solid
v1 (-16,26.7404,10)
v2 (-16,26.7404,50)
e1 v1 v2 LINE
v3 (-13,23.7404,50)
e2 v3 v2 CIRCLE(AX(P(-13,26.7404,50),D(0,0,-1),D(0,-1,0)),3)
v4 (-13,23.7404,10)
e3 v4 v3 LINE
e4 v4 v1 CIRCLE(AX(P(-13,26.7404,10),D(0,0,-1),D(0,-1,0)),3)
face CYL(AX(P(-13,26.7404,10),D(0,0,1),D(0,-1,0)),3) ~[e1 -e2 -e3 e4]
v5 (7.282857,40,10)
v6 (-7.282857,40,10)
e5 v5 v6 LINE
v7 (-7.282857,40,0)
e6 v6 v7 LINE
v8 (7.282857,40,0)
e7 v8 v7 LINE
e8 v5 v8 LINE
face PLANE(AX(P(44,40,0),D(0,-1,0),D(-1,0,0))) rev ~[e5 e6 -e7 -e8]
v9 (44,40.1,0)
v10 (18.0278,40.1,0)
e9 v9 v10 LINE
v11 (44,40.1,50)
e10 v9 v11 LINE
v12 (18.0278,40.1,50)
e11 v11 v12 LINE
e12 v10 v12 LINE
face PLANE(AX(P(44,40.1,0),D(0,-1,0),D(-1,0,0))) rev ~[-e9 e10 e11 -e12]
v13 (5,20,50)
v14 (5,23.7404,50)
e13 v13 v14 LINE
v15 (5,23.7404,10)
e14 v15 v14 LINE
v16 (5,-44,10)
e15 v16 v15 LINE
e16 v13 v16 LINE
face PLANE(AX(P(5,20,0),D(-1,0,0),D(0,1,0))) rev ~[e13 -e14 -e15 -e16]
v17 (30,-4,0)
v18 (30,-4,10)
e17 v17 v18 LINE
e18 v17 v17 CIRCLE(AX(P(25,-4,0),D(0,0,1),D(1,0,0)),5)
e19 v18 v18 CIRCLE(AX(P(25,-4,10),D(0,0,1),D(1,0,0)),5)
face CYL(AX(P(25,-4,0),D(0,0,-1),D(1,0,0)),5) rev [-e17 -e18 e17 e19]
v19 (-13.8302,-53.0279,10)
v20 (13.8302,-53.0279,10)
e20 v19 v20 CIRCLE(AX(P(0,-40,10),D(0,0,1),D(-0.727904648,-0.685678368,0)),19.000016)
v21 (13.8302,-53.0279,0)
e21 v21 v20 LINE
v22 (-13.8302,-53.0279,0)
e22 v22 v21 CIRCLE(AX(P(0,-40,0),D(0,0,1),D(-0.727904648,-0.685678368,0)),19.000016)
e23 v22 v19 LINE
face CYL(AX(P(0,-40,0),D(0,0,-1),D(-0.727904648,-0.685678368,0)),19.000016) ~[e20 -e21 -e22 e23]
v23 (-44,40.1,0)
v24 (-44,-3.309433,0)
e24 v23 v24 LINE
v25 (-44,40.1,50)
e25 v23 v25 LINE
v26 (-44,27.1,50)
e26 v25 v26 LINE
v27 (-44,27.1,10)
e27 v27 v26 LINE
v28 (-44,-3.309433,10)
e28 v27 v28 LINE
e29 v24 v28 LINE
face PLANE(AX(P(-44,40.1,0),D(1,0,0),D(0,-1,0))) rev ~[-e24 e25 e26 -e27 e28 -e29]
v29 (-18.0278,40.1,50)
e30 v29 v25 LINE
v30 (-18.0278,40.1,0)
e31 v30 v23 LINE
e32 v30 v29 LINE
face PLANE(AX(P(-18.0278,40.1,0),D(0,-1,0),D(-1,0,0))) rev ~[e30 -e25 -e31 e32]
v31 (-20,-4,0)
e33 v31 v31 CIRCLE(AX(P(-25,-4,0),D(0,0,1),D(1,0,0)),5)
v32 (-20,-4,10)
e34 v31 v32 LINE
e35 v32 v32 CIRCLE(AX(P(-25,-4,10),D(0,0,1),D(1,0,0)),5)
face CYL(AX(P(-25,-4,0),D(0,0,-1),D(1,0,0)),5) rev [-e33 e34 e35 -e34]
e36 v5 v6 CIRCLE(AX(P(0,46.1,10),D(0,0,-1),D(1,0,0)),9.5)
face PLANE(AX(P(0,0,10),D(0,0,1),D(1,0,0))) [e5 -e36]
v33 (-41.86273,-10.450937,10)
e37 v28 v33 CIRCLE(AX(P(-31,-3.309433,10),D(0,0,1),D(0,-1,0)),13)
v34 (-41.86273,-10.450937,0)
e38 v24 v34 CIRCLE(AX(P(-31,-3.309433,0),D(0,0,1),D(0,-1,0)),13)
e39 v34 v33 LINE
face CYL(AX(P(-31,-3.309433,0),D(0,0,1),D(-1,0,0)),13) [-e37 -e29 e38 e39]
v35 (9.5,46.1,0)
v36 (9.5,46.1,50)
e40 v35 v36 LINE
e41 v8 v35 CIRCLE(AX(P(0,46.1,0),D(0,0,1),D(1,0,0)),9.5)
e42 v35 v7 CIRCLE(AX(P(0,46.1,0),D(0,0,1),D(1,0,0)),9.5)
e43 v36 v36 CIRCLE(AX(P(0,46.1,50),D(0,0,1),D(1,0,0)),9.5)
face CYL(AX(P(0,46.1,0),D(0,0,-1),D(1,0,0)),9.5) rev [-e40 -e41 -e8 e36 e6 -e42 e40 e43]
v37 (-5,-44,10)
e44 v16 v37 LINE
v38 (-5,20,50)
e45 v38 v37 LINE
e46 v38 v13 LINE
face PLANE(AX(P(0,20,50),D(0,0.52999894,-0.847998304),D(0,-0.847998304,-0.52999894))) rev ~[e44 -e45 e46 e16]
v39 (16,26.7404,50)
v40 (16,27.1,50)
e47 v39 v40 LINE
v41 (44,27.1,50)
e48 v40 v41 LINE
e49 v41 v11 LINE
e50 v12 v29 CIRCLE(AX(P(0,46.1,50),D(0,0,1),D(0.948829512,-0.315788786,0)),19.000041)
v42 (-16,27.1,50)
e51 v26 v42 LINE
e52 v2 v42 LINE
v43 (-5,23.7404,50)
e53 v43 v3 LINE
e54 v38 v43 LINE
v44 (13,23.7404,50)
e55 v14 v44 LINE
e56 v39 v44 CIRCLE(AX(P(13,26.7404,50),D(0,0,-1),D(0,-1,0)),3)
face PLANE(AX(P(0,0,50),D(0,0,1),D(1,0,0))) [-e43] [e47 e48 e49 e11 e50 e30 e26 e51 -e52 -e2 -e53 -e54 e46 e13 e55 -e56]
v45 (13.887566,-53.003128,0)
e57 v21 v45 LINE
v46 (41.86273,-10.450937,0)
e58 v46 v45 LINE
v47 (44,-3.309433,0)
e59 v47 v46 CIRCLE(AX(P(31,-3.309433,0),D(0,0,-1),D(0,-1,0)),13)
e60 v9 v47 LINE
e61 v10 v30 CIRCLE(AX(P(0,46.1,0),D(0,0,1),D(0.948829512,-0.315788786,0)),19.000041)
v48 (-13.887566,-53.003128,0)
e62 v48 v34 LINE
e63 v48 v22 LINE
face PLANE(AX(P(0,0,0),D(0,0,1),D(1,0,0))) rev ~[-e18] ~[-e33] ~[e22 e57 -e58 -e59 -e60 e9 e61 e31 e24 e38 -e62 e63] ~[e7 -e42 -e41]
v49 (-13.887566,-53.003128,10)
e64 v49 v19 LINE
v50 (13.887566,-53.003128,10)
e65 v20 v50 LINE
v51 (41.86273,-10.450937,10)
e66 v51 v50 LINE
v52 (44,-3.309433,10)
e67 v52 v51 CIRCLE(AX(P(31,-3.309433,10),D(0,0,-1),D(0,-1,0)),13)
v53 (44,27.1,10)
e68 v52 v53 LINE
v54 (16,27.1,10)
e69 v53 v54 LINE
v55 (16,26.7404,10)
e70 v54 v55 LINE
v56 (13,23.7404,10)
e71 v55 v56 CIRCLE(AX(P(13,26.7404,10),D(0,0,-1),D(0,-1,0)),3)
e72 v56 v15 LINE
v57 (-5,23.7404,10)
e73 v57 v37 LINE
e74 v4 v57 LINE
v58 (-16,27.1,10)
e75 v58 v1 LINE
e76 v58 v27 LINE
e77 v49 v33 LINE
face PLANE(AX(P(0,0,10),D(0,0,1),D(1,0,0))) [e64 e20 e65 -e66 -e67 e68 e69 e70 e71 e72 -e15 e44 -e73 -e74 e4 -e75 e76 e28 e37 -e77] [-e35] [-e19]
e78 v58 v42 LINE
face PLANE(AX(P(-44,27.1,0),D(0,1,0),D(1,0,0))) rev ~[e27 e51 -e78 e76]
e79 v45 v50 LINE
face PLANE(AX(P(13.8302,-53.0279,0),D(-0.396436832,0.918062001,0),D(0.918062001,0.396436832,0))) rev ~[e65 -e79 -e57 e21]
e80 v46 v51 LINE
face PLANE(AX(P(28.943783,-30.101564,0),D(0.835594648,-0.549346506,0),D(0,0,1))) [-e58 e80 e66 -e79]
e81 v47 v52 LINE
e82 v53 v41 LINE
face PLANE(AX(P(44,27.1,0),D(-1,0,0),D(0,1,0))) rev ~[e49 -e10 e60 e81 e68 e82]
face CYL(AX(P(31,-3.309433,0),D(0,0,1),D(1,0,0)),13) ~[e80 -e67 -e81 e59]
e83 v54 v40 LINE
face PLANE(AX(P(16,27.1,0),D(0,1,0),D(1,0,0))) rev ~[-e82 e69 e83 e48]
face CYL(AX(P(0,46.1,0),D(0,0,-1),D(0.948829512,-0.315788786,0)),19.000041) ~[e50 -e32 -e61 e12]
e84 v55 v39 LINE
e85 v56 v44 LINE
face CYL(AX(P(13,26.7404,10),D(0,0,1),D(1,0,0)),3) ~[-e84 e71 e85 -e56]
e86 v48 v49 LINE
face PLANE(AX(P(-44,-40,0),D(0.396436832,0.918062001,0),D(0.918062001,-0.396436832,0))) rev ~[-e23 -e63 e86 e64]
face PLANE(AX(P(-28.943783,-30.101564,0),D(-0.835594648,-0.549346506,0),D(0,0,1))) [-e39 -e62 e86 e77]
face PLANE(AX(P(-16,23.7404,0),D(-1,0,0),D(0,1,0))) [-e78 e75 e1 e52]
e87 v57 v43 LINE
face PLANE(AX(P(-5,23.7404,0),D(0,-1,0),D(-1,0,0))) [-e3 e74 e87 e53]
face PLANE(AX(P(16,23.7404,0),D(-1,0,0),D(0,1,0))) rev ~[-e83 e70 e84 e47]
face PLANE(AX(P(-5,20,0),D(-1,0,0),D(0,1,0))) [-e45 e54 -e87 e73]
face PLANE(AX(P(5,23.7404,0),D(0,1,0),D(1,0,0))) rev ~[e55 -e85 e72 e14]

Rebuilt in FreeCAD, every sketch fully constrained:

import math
import FreeCAD as App
import Part
import Sketcher

V = App.Vector
Q = App.Units.Quantity


def edges_at(feature, points):
    """Names of the edges that pass closest to the given points."""
    edges = feature.Shape.Edges
    near = lambda p: min(range(len(edges)), key=lambda i: edges[i].distToShape(Part.Vertex(*p))[0])
    return sorted({f"Edge{near(p) + 1}" for p in points})

doc = App.newDocument("Part")
body = doc.addObject("PartDesign::Body", "Body")

sketch1 = body.newObject("Sketcher::SketchObject", "Sketch")
sketch1.AttachmentSupport = (doc.getObject("XY_Plane"), [""])
sketch1.MapMode = "FlatFace"
sketch1.addGeometry([
    Part.LineSegment(V(44, -40, 0), V(44, 40, 0)),
    Part.LineSegment(V(44, 40, 0), V(-44, 40, 0)),
    Part.LineSegment(V(-44, 40, 0), V(-44, -40, 0)),
    Part.LineSegment(V(-44, -40, 0), V(-14, -53, 0)),
    Part.ArcOfCircle(Part.Circle(V(0, -40, 0), V(0, 0, 1), 19), math.radians(-137), math.radians(-43)),
    Part.LineSegment(V(14, -53, 0), V(44, -40, 0)),
    Part.Circle(V(-25, -4, 0), V(0, 0, 1), 5),
    Part.Circle(V(25, -4, 0), V(0, 0, 1), 5),
], False)
sketch1.addConstraint([
    Sketcher.Constraint("Coincident", 0, 2, 1, 1),
    Sketcher.Constraint("Coincident", 1, 2, 2, 1),
    Sketcher.Constraint("Coincident", 2, 2, 3, 1),
    Sketcher.Constraint("Coincident", 3, 2, 4, 1),
    Sketcher.Constraint("Coincident", 4, 2, 5, 1),
    Sketcher.Constraint("Coincident", 5, 2, 0, 1),
    Sketcher.Constraint("Vertical", 0),
    Sketcher.Constraint("Horizontal", 1),
    Sketcher.Constraint("Vertical", 2),
    Sketcher.Constraint("Equal", 6, 7),
    Sketcher.Constraint("Symmetric", 0, 2, 2, 2, -1, 1),
    Sketcher.Constraint("Symmetric", 6, 3, 7, 3, -2),
    Sketcher.Constraint("Symmetric", 3, 2, 4, 2, -2),
    Sketcher.Constraint("Horizontal", 4, 3, 2, 2),
    Sketcher.Constraint("Horizontal", 2, 2, 5, 2),
    Sketcher.Constraint("Diameter", 6, Q("10 mm")),
    Sketcher.Constraint("Radius", 4, Q("19 mm")),
    Sketcher.Constraint("DistanceX", 1, 2, 1, 1, Q("88 mm")),
    Sketcher.Constraint("DistanceY", 0, 1, 0, 2, Q("80 mm")),
    Sketcher.Constraint("DistanceX", 7, 3, 0, 2, Q("19 mm")),
    Sketcher.Constraint("DistanceY", 6, 3, -1, 1, Q("4 mm")),
    Sketcher.Constraint("DistanceY", 3, 2, -1, 1, Q("53.028 mm")),
])
pad1 = body.newObject("PartDesign::Pad", "Pad")
pad1.Profile = sketch1
pad1.Length = 10
doc.recompute()

chamfer = body.newObject("PartDesign::Chamfer", "Chamfer")
chamfer.Base = (pad1, edges_at(pad1, [(-44, -40, 5), (44, -40, 5)]))
chamfer.Size = 32.8
doc.recompute()

fillet = body.newObject("PartDesign::Fillet", "Fillet")
fillet.Base = (chamfer, edges_at(chamfer, [(-44, -7.2, 5), (44, -7.2, 5)]))
fillet.Radius = 13

sketch2 = body.newObject("Sketcher::SketchObject", "Sketch001")
sketch2.AttachmentSupport = (doc.getObject("YZ_Plane"), [""])
sketch2.MapMode = "FlatFace"
sketch2.addGeometry([
    Part.LineSegment(V(-44, 10, 0), V(20, 10, 0)),
    Part.LineSegment(V(20, 10, 0), V(20, 50, 0)),
    Part.LineSegment(V(20, 50, 0), V(-44, 10, 0)),
], False)
sketch2.addConstraint([
    Sketcher.Constraint("Coincident", 0, 2, 1, 1),
    Sketcher.Constraint("Coincident", 1, 2, 2, 1),
    Sketcher.Constraint("Coincident", 2, 2, 0, 1),
    Sketcher.Constraint("Horizontal", 0),
    Sketcher.Constraint("Vertical", 1),
    Sketcher.Constraint("DistanceX", 0, 1, 0, 2, Q("64 mm")),
    Sketcher.Constraint("DistanceY", 1, 1, 1, 2, Q("40 mm")),
    Sketcher.Constraint("DistanceX", -1, 1, 0, 2, Q("20 mm")),
    Sketcher.Constraint("DistanceY", -1, 1, 0, 2, Q("10 mm")),
])
pad2 = body.newObject("PartDesign::Pad", "Pad001")
pad2.Profile = sketch2
pad2.Length = 10
pad2.Midplane = True

sketch3 = body.newObject("Sketcher::SketchObject", "Sketch002")
sketch3.AttachmentSupport = (doc.getObject("XY_Plane"), [""])
sketch3.MapMode = "FlatFace"
sketch3.addGeometry([
    Part.LineSegment(V(-18, 40.1, 0), V(-44, 40.1, 0)),
    Part.LineSegment(V(-44, 40.1, 0), V(-44, 27.1, 0)),
    Part.LineSegment(V(-44, 27.1, 0), V(-16, 27.1, 0)),
    Part.LineSegment(V(-16, 27.1, 0), V(-16, 23.7, 0)),
    Part.LineSegment(V(-16, 23.7, 0), V(-5, 23.7, 0)),
    Part.LineSegment(V(-5, 23.7, 0), V(-5, 20, 0)),
    Part.LineSegment(V(-5, 20, 0), V(5, 20, 0)),
    Part.LineSegment(V(5, 20, 0), V(5, 23.7, 0)),
    Part.LineSegment(V(5, 23.7, 0), V(16, 23.7, 0)),
    Part.LineSegment(V(16, 23.7, 0), V(16, 27.1, 0)),
    Part.LineSegment(V(16, 27.1, 0), V(44, 27.1, 0)),
    Part.LineSegment(V(44, 27.1, 0), V(44, 40.1, 0)),
    Part.LineSegment(V(44, 40.1, 0), V(18, 40.1, 0)),
    Part.ArcOfCircle(Part.Circle(V(0, 46.1, 0), V(0, 0, 1), 19), math.radians(-18), math.radians(198)),
    Part.Circle(V(0, 46.1, 0), V(0, 0, 1), 9.5),
], False)
sketch3.addConstraint([
    Sketcher.Constraint("Coincident", 0, 2, 1, 1),
    Sketcher.Constraint("Coincident", 1, 2, 2, 1),
    Sketcher.Constraint("Coincident", 2, 2, 3, 1),
    Sketcher.Constraint("Coincident", 3, 2, 4, 1),
    Sketcher.Constraint("Coincident", 4, 2, 5, 1),
    Sketcher.Constraint("Coincident", 5, 2, 6, 1),
    Sketcher.Constraint("Coincident", 6, 2, 7, 1),
    Sketcher.Constraint("Coincident", 7, 2, 8, 1),
    Sketcher.Constraint("Coincident", 8, 2, 9, 1),
    Sketcher.Constraint("Coincident", 9, 2, 10, 1),
    Sketcher.Constraint("Coincident", 10, 2, 11, 1),
    Sketcher.Constraint("Coincident", 11, 2, 12, 1),
    Sketcher.Constraint("Coincident", 12, 2, 13, 1),
    Sketcher.Constraint("Coincident", 13, 2, 0, 1),
    Sketcher.Constraint("Horizontal", 0),
    Sketcher.Constraint("Vertical", 1),
    Sketcher.Constraint("Horizontal", 2),
    Sketcher.Constraint("Vertical", 3),
    Sketcher.Constraint("Horizontal", 4),
    Sketcher.Constraint("Vertical", 5),
    Sketcher.Constraint("Horizontal", 6),
    Sketcher.Constraint("Vertical", 7),
    Sketcher.Constraint("Horizontal", 8),
    Sketcher.Constraint("Vertical", 9),
    Sketcher.Constraint("Horizontal", 10),
    Sketcher.Constraint("Vertical", 11),
    Sketcher.Constraint("Horizontal", 12),
    Sketcher.Constraint("Coincident", 14, 3, 13, 3),
    Sketcher.Constraint("Symmetric", 4, 2, 7, 2, -2),
    Sketcher.Constraint("Symmetric", 2, 2, 9, 2, -2),
    Sketcher.Constraint("Symmetric", 0, 2, 11, 2, -2),
    Sketcher.Constraint("PointOnObject", 13, 3, -2),
    Sketcher.Constraint("Diameter", 14, Q("19 mm")),
    Sketcher.Constraint("Radius", 13, Q("19 mm")),
    Sketcher.Constraint("DistanceY", 1, 2, 1, 1, Q("13 mm")),
    Sketcher.Constraint("DistanceY", 1, 2, 13, 3, Q("19 mm")),
    Sketcher.Constraint("DistanceX", 2, 1, 2, 2, Q("28 mm")),
    Sketcher.Constraint("DistanceX", 4, 1, 4, 2, Q("11 mm")),
    Sketcher.Constraint("DistanceX", 6, 1, 6, 2, Q("10 mm")),
    Sketcher.Constraint("DistanceY", -1, 1, 5, 2, Q("20 mm")),
    Sketcher.Constraint("DistanceY", -1, 1, 13, 3, Q("46.1 mm")),
    Sketcher.Constraint("DistanceY", 3, 2, 3, 1, Q("3.3596 mm")),
])
pad3 = body.newObject("PartDesign::Pad", "Pad002")
pad3.Profile = sketch3
pad3.Length = 50
doc.recompute()

fillet2 = body.newObject("PartDesign::Fillet", "Fillet001")
fillet2.Base = (pad3, edges_at(pad3, [(-16, 23.74, 30), (16, 23.74, 30)]))
fillet2.Radius = 3

doc.recompute()
